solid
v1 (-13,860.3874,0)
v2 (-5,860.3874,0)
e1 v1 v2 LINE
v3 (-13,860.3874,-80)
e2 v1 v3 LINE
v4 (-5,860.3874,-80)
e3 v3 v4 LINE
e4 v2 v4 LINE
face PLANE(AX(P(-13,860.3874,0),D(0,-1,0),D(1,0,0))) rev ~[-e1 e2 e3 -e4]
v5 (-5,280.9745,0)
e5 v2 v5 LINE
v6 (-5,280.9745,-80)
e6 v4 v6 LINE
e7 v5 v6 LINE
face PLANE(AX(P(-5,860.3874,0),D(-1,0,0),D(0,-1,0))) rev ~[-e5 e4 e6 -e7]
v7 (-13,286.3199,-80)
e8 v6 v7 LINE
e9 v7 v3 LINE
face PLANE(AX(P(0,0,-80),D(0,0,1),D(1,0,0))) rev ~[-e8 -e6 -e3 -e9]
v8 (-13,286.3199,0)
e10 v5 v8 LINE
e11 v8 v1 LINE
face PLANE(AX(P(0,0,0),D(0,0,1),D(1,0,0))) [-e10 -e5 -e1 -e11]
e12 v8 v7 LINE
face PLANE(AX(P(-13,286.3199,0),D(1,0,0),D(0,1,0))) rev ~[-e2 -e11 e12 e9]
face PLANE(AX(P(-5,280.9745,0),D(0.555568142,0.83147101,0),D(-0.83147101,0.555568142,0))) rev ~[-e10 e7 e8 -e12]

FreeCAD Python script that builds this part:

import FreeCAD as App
import Part
import Sketcher

V = App.Vector
Q = App.Units.Quantity


def add_polygon(sketch, points):
    """Adds a closed chain of lines whose ends are joined by coincident constraints."""
    first, n = sketch.GeometryCount, len(points)
    for a, b in zip(points, points[1:] + points[:1]):
        sketch.addGeometry(Part.LineSegment(App.Vector(*a, 0), App.Vector(*b, 0)), False)
    for i in range(n):
        sketch.addConstraint(Sketcher.Constraint("Coincident", first + i, 2, first + (i + 1) % n, 1))

doc = App.newDocument("Part")
body = doc.addObject("PartDesign::Body", "Body")

# Sketch on XY plane
sketch1 = body.newObject("Sketcher::SketchObject", "Sketch")
sketch1.AttachmentSupport = (doc.getObject("XY_Plane"), [""])
sketch1.MapMode = "FlatFace"
add_polygon(sketch1, [(-5, 860), (-13, 860), (-13, 286), (-5, 281)])  # lines 0-3
sketch1.addConstraint([
    Sketcher.Constraint("Horizontal", 0),
    Sketcher.Constraint("Vertical", 1),
    Sketcher.Constraint("Vertical", 3),
    Sketcher.Constraint("DistanceX", 0, 2, 0, 1, 8.0),
    Sketcher.Constraint("DistanceX", 2, 2, -1, 1, 5.0),
    Sketcher.Constraint("Angle", 2, Q("-33.7499 deg")),
    Sketcher.Constraint("DistanceY", 3, 1, 3, 2, 579.413),
    Sketcher.Constraint("DistanceY", -1, 1, 1, 2, 286.32),
])
pad1 = body.newObject("PartDesign::Pad", "Pad")
pad1.Profile = sketch1
pad1.Length = 80
pad1.Reversed = True

doc.recompute()
